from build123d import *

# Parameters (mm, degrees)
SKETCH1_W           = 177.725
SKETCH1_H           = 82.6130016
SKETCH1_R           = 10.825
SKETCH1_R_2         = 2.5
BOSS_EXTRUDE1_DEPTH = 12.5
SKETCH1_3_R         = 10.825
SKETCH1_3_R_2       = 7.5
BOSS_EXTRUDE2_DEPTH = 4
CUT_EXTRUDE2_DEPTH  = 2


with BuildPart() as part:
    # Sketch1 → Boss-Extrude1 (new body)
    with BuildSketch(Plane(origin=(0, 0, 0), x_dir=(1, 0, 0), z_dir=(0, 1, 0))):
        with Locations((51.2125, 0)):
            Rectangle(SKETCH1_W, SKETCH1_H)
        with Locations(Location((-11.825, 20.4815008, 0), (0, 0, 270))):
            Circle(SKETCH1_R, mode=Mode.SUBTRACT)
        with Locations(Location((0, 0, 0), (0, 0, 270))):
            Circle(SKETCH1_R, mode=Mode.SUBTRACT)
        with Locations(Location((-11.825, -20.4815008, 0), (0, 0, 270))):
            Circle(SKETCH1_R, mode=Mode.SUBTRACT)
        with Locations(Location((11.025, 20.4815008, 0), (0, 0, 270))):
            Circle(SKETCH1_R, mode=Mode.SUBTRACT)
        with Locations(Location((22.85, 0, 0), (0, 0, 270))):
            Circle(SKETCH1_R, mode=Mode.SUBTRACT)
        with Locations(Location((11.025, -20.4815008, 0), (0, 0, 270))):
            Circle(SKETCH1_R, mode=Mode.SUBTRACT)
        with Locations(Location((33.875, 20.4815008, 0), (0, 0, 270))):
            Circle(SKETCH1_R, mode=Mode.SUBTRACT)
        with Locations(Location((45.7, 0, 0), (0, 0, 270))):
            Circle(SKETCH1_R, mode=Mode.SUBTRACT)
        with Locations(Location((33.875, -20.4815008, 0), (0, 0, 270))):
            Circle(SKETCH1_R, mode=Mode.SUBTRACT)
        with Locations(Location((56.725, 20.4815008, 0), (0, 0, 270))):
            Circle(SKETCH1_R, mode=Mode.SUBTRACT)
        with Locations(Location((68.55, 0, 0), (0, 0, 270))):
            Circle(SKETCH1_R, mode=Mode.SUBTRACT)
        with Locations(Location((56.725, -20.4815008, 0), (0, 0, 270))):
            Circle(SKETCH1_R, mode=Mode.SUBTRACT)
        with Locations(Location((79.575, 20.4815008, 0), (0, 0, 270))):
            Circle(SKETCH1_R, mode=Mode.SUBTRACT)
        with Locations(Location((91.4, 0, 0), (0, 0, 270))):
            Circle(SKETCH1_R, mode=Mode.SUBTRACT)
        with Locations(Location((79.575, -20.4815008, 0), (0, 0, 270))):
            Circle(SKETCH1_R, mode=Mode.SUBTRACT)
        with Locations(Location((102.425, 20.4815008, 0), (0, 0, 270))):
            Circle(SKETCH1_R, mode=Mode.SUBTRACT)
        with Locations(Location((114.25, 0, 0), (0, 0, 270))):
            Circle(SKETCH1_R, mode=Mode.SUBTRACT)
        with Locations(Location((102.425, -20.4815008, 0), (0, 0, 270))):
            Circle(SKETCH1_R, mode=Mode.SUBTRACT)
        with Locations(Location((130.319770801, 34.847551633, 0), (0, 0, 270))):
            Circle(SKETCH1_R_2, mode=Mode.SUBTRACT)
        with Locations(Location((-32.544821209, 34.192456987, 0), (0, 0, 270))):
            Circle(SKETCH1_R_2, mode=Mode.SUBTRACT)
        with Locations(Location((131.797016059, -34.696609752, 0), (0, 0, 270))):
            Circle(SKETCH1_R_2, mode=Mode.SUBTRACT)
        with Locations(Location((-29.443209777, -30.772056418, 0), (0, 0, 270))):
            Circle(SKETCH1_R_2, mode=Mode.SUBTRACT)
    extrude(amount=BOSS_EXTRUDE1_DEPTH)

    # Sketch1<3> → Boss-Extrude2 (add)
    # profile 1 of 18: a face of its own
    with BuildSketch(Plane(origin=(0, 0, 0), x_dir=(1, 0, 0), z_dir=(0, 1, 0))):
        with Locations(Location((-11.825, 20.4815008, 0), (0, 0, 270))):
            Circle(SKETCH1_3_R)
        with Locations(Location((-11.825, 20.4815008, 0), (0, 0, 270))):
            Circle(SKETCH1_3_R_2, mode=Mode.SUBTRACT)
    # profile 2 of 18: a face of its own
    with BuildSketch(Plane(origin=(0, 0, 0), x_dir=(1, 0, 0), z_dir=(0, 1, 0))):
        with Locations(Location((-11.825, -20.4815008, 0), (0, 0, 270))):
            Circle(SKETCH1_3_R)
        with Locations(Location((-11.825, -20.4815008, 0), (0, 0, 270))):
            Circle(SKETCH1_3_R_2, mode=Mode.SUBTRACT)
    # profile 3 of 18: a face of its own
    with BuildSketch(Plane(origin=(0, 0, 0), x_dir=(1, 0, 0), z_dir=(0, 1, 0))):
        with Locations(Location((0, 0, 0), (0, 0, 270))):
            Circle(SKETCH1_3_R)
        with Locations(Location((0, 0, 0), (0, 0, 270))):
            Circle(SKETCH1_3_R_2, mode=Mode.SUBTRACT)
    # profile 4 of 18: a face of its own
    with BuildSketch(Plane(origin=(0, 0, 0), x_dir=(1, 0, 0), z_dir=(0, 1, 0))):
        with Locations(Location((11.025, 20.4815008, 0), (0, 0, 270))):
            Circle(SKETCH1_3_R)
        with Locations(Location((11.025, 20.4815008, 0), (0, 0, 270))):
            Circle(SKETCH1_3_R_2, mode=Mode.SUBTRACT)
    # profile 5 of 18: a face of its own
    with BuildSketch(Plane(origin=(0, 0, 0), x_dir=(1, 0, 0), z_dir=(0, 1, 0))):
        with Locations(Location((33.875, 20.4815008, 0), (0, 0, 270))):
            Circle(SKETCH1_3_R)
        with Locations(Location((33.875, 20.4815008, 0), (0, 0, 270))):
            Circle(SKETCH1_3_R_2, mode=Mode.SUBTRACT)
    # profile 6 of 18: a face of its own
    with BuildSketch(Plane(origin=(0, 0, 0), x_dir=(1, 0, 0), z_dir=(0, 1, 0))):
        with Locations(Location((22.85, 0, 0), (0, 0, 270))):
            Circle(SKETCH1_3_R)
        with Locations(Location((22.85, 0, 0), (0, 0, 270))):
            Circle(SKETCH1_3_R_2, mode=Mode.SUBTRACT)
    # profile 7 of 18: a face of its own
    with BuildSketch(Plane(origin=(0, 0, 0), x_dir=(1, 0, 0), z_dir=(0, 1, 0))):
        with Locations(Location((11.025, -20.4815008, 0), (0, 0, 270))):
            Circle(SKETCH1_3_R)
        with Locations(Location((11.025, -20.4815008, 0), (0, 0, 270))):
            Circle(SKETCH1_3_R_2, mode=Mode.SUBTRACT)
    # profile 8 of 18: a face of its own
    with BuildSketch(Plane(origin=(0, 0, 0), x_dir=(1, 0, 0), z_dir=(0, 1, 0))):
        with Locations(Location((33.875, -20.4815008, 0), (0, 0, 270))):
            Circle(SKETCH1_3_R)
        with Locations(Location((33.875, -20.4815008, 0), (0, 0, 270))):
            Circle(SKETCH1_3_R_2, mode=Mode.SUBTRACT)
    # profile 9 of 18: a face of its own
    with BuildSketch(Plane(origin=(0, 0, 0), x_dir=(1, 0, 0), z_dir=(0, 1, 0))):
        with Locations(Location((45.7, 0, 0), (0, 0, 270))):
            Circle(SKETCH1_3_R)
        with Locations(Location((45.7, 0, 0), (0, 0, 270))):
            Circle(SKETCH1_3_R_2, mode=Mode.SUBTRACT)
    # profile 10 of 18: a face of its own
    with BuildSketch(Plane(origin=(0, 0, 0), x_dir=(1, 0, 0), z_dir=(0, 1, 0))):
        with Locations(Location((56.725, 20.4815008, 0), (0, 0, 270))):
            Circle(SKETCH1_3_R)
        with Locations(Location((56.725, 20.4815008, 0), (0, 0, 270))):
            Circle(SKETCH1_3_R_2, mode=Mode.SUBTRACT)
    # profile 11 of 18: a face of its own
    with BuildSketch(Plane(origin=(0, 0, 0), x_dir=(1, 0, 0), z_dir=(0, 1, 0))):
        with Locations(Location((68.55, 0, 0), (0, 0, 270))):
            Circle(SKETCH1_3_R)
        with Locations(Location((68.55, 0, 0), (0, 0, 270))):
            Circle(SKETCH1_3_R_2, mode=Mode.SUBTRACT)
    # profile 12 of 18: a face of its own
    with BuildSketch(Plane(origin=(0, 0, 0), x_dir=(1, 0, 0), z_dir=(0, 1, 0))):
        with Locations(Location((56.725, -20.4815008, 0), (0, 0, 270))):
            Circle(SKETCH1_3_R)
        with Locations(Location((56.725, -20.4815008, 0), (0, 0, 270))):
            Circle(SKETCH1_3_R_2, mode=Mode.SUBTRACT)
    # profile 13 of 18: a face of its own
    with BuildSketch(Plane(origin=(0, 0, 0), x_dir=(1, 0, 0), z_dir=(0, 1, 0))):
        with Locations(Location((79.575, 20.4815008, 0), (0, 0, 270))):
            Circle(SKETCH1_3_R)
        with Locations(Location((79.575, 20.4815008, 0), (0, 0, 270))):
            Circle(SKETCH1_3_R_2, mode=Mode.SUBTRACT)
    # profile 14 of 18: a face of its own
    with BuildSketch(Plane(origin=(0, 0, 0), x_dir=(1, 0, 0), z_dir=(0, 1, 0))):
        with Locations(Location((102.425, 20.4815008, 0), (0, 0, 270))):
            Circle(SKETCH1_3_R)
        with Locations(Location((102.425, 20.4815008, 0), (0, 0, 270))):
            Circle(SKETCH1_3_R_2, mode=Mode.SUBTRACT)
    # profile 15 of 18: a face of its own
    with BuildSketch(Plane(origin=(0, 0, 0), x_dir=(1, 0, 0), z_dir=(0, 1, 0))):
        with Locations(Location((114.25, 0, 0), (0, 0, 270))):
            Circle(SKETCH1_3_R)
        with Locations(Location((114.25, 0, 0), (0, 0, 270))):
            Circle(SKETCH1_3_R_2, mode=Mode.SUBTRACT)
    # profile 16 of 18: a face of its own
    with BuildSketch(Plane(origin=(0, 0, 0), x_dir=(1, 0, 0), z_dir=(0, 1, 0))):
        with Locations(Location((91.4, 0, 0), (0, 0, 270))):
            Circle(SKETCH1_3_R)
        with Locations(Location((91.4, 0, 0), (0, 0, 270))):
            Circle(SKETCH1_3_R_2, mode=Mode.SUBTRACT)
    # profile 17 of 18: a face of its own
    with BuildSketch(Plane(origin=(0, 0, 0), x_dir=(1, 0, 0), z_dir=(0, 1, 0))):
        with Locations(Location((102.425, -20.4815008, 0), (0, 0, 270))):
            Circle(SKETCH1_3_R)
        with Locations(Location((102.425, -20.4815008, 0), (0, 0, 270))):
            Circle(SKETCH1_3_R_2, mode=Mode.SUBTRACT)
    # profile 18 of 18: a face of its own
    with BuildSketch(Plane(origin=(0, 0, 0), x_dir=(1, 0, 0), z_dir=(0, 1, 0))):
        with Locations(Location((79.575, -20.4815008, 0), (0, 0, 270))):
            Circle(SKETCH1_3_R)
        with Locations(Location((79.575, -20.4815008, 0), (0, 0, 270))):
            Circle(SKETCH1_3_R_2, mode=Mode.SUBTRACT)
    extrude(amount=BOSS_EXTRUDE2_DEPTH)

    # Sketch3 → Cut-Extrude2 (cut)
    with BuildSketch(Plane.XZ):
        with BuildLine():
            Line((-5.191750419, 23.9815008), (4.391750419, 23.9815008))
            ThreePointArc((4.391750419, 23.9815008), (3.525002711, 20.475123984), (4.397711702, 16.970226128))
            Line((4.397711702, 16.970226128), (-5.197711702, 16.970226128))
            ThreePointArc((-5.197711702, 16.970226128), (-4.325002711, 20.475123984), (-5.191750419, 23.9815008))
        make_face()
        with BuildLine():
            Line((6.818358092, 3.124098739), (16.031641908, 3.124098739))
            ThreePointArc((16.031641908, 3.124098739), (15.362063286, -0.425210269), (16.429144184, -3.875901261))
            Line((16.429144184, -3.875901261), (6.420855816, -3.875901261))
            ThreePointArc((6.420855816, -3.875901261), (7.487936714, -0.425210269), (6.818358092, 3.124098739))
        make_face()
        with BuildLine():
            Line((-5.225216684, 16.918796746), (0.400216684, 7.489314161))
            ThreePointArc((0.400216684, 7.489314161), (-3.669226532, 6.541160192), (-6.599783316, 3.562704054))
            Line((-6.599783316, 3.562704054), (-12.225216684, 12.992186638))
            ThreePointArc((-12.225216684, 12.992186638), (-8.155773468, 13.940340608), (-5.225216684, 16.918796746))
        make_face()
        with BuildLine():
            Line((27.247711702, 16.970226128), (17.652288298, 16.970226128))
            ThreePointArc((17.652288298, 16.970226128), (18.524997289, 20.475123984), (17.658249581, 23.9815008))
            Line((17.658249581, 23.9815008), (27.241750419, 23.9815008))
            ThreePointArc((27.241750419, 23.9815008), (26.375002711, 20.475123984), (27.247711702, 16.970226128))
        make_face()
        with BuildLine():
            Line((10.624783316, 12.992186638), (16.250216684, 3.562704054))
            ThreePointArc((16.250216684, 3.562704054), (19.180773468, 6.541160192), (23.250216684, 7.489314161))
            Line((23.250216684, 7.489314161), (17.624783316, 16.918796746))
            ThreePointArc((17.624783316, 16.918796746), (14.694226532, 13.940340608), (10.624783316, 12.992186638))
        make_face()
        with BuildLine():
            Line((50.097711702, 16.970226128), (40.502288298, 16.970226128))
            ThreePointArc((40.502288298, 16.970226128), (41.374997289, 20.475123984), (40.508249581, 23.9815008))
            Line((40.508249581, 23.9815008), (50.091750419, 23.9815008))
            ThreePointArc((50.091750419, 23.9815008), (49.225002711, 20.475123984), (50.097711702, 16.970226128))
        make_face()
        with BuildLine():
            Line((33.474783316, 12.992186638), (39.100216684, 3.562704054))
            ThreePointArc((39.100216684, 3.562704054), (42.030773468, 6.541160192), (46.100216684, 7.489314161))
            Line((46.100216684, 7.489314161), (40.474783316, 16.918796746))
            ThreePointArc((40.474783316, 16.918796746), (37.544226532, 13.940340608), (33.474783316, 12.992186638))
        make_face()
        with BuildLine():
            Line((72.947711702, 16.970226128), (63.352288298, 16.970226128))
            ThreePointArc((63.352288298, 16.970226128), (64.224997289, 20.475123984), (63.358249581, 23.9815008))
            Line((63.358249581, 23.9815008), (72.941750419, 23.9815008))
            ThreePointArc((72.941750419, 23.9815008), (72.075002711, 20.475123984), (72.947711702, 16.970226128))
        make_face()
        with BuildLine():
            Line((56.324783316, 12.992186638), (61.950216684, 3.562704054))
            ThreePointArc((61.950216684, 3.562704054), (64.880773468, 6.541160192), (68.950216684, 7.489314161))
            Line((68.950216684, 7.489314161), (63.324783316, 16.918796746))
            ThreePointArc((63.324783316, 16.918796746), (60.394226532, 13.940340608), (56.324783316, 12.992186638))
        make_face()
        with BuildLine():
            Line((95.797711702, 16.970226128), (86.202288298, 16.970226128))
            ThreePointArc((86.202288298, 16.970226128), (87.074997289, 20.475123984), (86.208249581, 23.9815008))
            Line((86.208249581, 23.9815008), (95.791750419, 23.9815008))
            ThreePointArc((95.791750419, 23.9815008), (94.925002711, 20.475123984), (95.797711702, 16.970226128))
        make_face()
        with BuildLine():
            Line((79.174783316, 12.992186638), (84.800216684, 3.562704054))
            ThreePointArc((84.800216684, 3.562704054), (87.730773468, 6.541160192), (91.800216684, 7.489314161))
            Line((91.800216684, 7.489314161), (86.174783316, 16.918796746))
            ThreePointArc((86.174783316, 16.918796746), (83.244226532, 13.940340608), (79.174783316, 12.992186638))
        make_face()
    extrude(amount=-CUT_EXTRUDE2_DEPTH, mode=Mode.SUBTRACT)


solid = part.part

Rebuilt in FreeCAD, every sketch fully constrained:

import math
import FreeCAD as App
import Part
import Sketcher

V = App.Vector


def add_polygon(sketch, points):
    """Adds a closed chain of lines whose ends are joined by coincident constraints."""
    first, n = sketch.GeometryCount, len(points)
    for a, b in zip(points, points[1:] + points[:1]):
        sketch.addGeometry(Part.LineSegment(App.Vector(*a, 0), App.Vector(*b, 0)), False)
    for i in range(n):
        sketch.addConstraint(Sketcher.Constraint("Coincident", first + i, 2, first + (i + 1) % n, 1))

doc = App.newDocument("Part")
params = doc.addObject("Spreadsheet::Sheet", "Params")
for row, (alias, value) in enumerate([
    ("sketch1_diameter", "5 mm"),
    ("sketch1_diameter2", "21.65 mm"),
    ("pad1_length", "12.5 mm"),
    ("sketch2_diameter", "15 mm"),
    ("sketch2_diameter2", "21.65 mm"),
    ("pad2_length", "4 mm"),
    ("sketch3_radius", "7.5 mm"),
    ("pocket1_length", "2 mm"),
], start=1):
    params.set(f"A{row}", alias)
    params.set(f"B{row}", "=" + value)
    params.setAlias(f"B{row}", alias)

body = doc.addObject("PartDesign::Body", "Body")

# Sketch on XZ plane
sketch1 = doc.addObject("Sketcher::SketchObject", "Sketch")
body.addObject(sketch1)
sketch1.AttachmentSupport = (doc.XZ_Plane, [""])
sketch1.MapMode = "FlatFace"
add_polygon(sketch1, [(-37.6, -41.3), (-37.6, 41.3), (140.1, 41.3), (140.1, -41.3)])  # lines 0-3
sketch1.addGeometry(Part.Circle(V(-29.4, 30.8, 0), V(0, 0, 1), 2.5), False)  # 4
sketch1.addGeometry(Part.Circle(V(-11.8, 20.5, 0), V(0, 0, 1), 10.8), False)  # 5
sketch1.addGeometry(Part.Circle(V(11, 20.5, 0), V(0, 0, 1), 10.8), False)  # 6
sketch1.addGeometry(Part.Circle(V(33.9, 20.5, 0), V(0, 0, 1), 10.8), False)  # 7
sketch1.addGeometry(Part.Circle(V(0, 0, 0), V(0, 0, 1), 10.8), False)  # 8
sketch1.addGeometry(Part.Circle(V(22.9, 0, 0), V(0, 0, 1), 10.8), False)  # 9
sketch1.addGeometry(Part.Circle(V(45.7, 0, 0), V(0, 0, 1), 10.8), False)  # 10
sketch1.addGeometry(Part.Circle(V(56.7, 20.5, 0), V(0, 0, 1), 10.8), False)  # 11
sketch1.addGeometry(Part.Circle(V(79.6, 20.5, 0), V(0, 0, 1), 10.8), False)  # 12
sketch1.addGeometry(Part.Circle(V(131.8, 34.7, 0), V(0, 0, 1), 2.5), False)  # 13
sketch1.addGeometry(Part.Circle(V(102.4, 20.5, 0), V(0, 0, 1), 10.8), False)  # 14
sketch1.addGeometry(Part.Circle(V(68.5, 0, 0), V(0, 0, 1), 10.8), False)  # 15
sketch1.addGeometry(Part.Circle(V(91.4, 0, 0), V(0, 0, 1), 10.8), False)  # 16
sketch1.addGeometry(Part.Circle(V(114.2, 0, 0), V(0, 0, 1), 10.8), False)  # 17
sketch1.addGeometry(Part.Circle(V(-11.8, -20.5, 0), V(0, 0, 1), 10.8), False)  # 18
sketch1.addGeometry(Part.Circle(V(-32.5, -34.2, 0), V(0, 0, 1), 2.5), False)  # 19
sketch1.addGeometry(Part.Circle(V(11, -20.5, 0), V(0, 0, 1), 10.8), False)  # 20
sketch1.addGeometry(Part.Circle(V(33.9, -20.5, 0), V(0, 0, 1), 10.8), False)  # 21
sketch1.addGeometry(Part.Circle(V(56.7, -20.5, 0), V(0, 0, 1), 10.8), False)  # 22
sketch1.addGeometry(Part.Circle(V(79.6, -20.5, 0), V(0, 0, 1), 10.8), False)  # 23
sketch1.addGeometry(Part.Circle(V(102.4, -20.5, 0), V(0, 0, 1), 10.8), False)  # 24
sketch1.addGeometry(Part.Circle(V(130.3, -34.8, 0), V(0, 0, 1), 2.5), False)  # 25
sketch1.addConstraint([
    Sketcher.Constraint("Vertical", 0),
    Sketcher.Constraint("Horizontal", 1),
    Sketcher.Constraint("Vertical", 2),
    Sketcher.Constraint("Horizontal", 3),
    Sketcher.Constraint("Coincident", 8, 3, -1, 1),
    Sketcher.Constraint("Equal", 5, 6),
    Sketcher.Constraint("Equal", 6, 7),
    Sketcher.Constraint("Equal", 7, 8),
    Sketcher.Constraint("Equal", 8, 9),
    Sketcher.Constraint("Equal", 9, 10),
    Sketcher.Constraint("Equal", 10, 11),
    Sketcher.Constraint("Equal", 11, 12),
    Sketcher.Constraint("Equal", 4, 13),
    Sketcher.Constraint("Equal", 12, 14),
    Sketcher.Constraint("Equal", 14, 15),
    Sketcher.Constraint("Equal", 15, 16),
    Sketcher.Constraint("Equal", 16, 17),
    Sketcher.Constraint("Equal", 17, 18),
    Sketcher.Constraint("Equal", 13, 19),
    Sketcher.Constraint("Equal", 18, 20),
    Sketcher.Constraint("Equal", 20, 21),
    Sketcher.Constraint("Equal", 21, 22),
    Sketcher.Constraint("Equal", 22, 23),
    Sketcher.Constraint("Equal", 23, 24),
    Sketcher.Constraint("Equal", 19, 25),
    Sketcher.Constraint("Symmetric", 5, 3, 18, 3, -1),
    Sketcher.Constraint("Symmetric", 6, 3, 20, 3, -1),
    Sketcher.Constraint("Symmetric", 7, 3, 21, 3, -1),
    Sketcher.Constraint("Symmetric", 11, 3, 22, 3, -1),
    Sketcher.Constraint("Symmetric", 12, 3, 23, 3, -1),
    Sketcher.Constraint("Symmetric", 14, 3, 24, 3, -1),
    Sketcher.Constraint("PointOnObject", 9, 3, -1),
    Sketcher.Constraint("PointOnObject", 10, 3, -1),
    Sketcher.Constraint("PointOnObject", 15, 3, -1),
    Sketcher.Constraint("PointOnObject", 16, 3, -1),
    Sketcher.Constraint("PointOnObject", 17, 3, -1),
    Sketcher.Constraint("Horizontal", 5, 3, 6, 3),
    Sketcher.Constraint("Horizontal", 6, 3, 7, 3),
    Sketcher.Constraint("Horizontal", 7, 3, 11, 3),
    Sketcher.Constraint("Horizontal", 11, 3, 12, 3),
    Sketcher.Constraint("Horizontal", 12, 3, 14, 3),
    Sketcher.Constraint("Diameter", 4, 5.0),
    Sketcher.Constraint("Diameter", 5, 21.65),
    Sketcher.Constraint("DistanceX", -1, 1, 10, 3, 45.7),
    Sketcher.Constraint("DistanceX", -1, 1, 16, 3, 91.4),
    Sketcher.Constraint("DistanceX", 5, 3, 7, 3, 45.7),
    Sketcher.Constraint("DistanceX", 6, 3, 11, 3, 45.7),
    Sketcher.Constraint("DistanceX", 7, 3, 12, 3, 45.7),
    Sketcher.Constraint("DistanceX", 11, 3, 14, 3, 45.7),
    Sketcher.Constraint("DistanceX", 15, 3, 17, 3, 45.7),
    Sketcher.Constraint("DistanceX", 12, 3, 1, 2, 60.5),
    Sketcher.Constraint("DistanceX", 1, 1, 1, 2, 177.725),
    Sketcher.Constraint("DistanceY", 0, 1, 0, 2, 82.613002),
    Sketcher.Constraint("DistanceX", -1, 1, 9, 3, 22.85),
    Sketcher.Constraint("DistanceX", -1, 1, 15, 3, 68.55),
    Sketcher.Constraint("DistanceX", 0, 2, -1, 1, 37.65),
    Sketcher.Constraint("DistanceX", 5, 3, 6, 3, 22.85),
    Sketcher.Constraint("DistanceY", 18, 3, 5, 3, 40.963002),
    Sketcher.Constraint("DistanceY", 5, 3, 0, 2, 20.825),
    Sketcher.Constraint("DistanceX", 4, 3, -1, 1, 29.44321),
    Sketcher.Constraint("DistanceY", -1, 1, 13, 3, 34.69661),
    Sketcher.Constraint("DistanceX", 19, 3, -1, 1, 32.544821),
    Sketcher.Constraint("DistanceX", -1, 1, 25, 3, 130.319771),
    Sketcher.Constraint("DistanceY", 25, 3, -1, 1, 34.847552),
    Sketcher.Constraint("DistanceY", -1, 1, 4, 3, 30.772056),
    Sketcher.Constraint("DistanceX", -1, 1, 13, 3, 131.797016),
    Sketcher.Constraint("DistanceY", 19, 3, -1, 1, 34.192457),
])
sketch1.setExpression("Constraints[45]", "Params.sketch1_diameter")
sketch1.setExpression("Constraints[46]", "Params.sketch1_diameter2")
pad1 = doc.addObject("PartDesign::Pad", "Pad")
body.addObject(pad1)
pad1.Profile = sketch1
pad1.setExpression("Length", "Params.pad1_length")
pad1.Reversed = True

# Sketch on XZ plane
sketch2 = doc.addObject("Sketcher::SketchObject", "Sketch001")
body.addObject(sketch2)
sketch2.AttachmentSupport = (doc.XZ_Plane, [""])
sketch2.MapMode = "FlatFace"
sketch2.addGeometry([
    Part.Circle(V(-12, -20, 0), V(0, 0, 1), 11),  # 0
    Part.Circle(V(-12, -20, 0), V(0, 0, 1), 8),  # 1
    Part.Circle(V(-12, 20, 0), V(0, 0, 1), 11),  # 2
    Part.Circle(V(-12, 20, 0), V(0, 0, 1), 8),  # 3
    Part.Circle(V(0, 0, 0), V(0, 0, 1), 11),  # 4
    Part.Circle(V(0, 0, 0), V(0, 0, 1), 8),  # 5
    Part.Circle(V(11, -20, 0), V(0, 0, 1), 11),  # 6
    Part.Circle(V(11, -20, 0), V(0, 0, 1), 8),  # 7
    Part.Circle(V(34, -20, 0), V(0, 0, 1), 11),  # 8
    Part.Circle(V(34, -20, 0), V(0, 0, 1), 8),  # 9
    Part.Circle(V(23, 0, 0), V(0, 0, 1), 11),  # 10
    Part.Circle(V(23, 0, 0), V(0, 0, 1), 8),  # 11
    Part.Circle(V(11, 20, 0), V(0, 0, 1), 11),  # 12
    Part.Circle(V(11, 20, 0), V(0, 0, 1), 8),  # 13
    Part.Circle(V(34, 20, 0), V(0, 0, 1), 11),  # 14
    Part.Circle(V(34, 20, 0), V(0, 0, 1), 8),  # 15
    Part.Circle(V(46, 0, 0), V(0, 0, 1), 11),  # 16
    Part.Circle(V(46, 0, 0), V(0, 0, 1), 8),  # 17
    Part.Circle(V(57, -20, 0), V(0, 0, 1), 11),  # 18
    Part.Circle(V(57, -20, 0), V(0, 0, 1), 8),  # 19
    Part.Circle(V(69, 0, 0), V(0, 0, 1), 11),  # 20
    Part.Circle(V(69, 0, 0), V(0, 0, 1), 8),  # 21
    Part.Circle(V(57, 20, 0), V(0, 0, 1), 11),  # 22
    Part.Circle(V(57, 20, 0), V(0, 0, 1), 8),  # 23
    Part.Circle(V(80, -20, 0), V(0, 0, 1), 11),  # 24
    Part.Circle(V(80, -20, 0), V(0, 0, 1), 8),  # 25
    Part.Circle(V(102, -20, 0), V(0, 0, 1), 11),  # 26
    Part.Circle(V(102, -20, 0), V(0, 0, 1), 8),  # 27
    Part.Circle(V(114, 0, 0), V(0, 0, 1), 11),  # 28
    Part.Circle(V(114, 0, 0), V(0, 0, 1), 8),  # 29
    Part.Circle(V(91, 0, 0), V(0, 0, 1), 11),  # 30
    Part.Circle(V(91, 0, 0), V(0, 0, 1), 8),  # 31
    Part.Circle(V(102, 20, 0), V(0, 0, 1), 11),  # 32
    Part.Circle(V(102, 20, 0), V(0, 0, 1), 8),  # 33
    Part.Circle(V(80, 20, 0), V(0, 0, 1), 11),  # 34
    Part.Circle(V(80, 20, 0), V(0, 0, 1), 8),  # 35
], False)
sketch2.addConstraint([
    Sketcher.Constraint("Coincident", 4, 3, -1, 1),
    Sketcher.Constraint("Coincident", 5, 3, -1, 1),
    Sketcher.Constraint("Coincident", 1, 3, 0, 3),
    Sketcher.Constraint("Coincident", 3, 3, 2, 3),
    Sketcher.Constraint("Coincident", 7, 3, 6, 3),
    Sketcher.Constraint("Coincident", 9, 3, 8, 3),
    Sketcher.Constraint("Coincident", 11, 3, 10, 3),
    Sketcher.Constraint("Coincident", 13, 3, 12, 3),
    Sketcher.Constraint("Coincident", 15, 3, 14, 3),
    Sketcher.Constraint("Coincident", 17, 3, 16, 3),
    Sketcher.Constraint("Coincident", 19, 3, 18, 3),
    Sketcher.Constraint("Coincident", 21, 3, 20, 3),
    Sketcher.Constraint("Coincident", 23, 3, 22, 3),
    Sketcher.Constraint("Coincident", 25, 3, 24, 3),
    Sketcher.Constraint("Coincident", 27, 3, 26, 3),
    Sketcher.Constraint("Coincident", 29, 3, 28, 3),
    Sketcher.Constraint("Coincident", 31, 3, 30, 3),
    Sketcher.Constraint("Coincident", 33, 3, 32, 3),
    Sketcher.Constraint("Coincident", 35, 3, 34, 3),
    Sketcher.Constraint("Equal", 0, 2),
    Sketcher.Constraint("Equal", 1, 3),
    Sketcher.Constraint("Equal", 2, 4),
    Sketcher.Constraint("Equal", 3, 5),
    Sketcher.Constraint("Equal", 4, 6),
    Sketcher.Constraint("Equal", 5, 7),
    Sketcher.Constraint("Equal", 6, 8),
    Sketcher.Constraint("Equal", 7, 9),
    Sketcher.Constraint("Equal", 8, 10),
    Sketcher.Constraint("Equal", 9, 11),
    Sketcher.Constraint("Equal", 10, 12),
    Sketcher.Constraint("Equal", 11, 13),
    Sketcher.Constraint("Equal", 12, 14),
    Sketcher.Constraint("Equal", 13, 15),
    Sketcher.Constraint("Equal", 14, 16),
    Sketcher.Constraint("Equal", 15, 17),
    Sketcher.Constraint("Equal", 16, 18),
    Sketcher.Constraint("Equal", 17, 19),
    Sketcher.Constraint("Equal", 18, 20),
    Sketcher.Constraint("Equal", 19, 21),
    Sketcher.Constraint("Equal", 20, 22),
    Sketcher.Constraint("Equal", 21, 23),
    Sketcher.Constraint("Equal", 22, 24),
    Sketcher.Constraint("Equal", 23, 25),
    Sketcher.Constraint("Equal", 24, 26),
    Sketcher.Constraint("Equal", 25, 27),
    Sketcher.Constraint("Equal", 26, 28),
    Sketcher.Constraint("Equal", 27, 29),
    Sketcher.Constraint("Equal", 28, 30),
    Sketcher.Constraint("Equal", 29, 31),
    Sketcher.Constraint("Equal", 30, 32),
    Sketcher.Constraint("Equal", 31, 33),
    Sketcher.Constraint("Equal", 32, 34),
    Sketcher.Constraint("Equal", 33, 35),
    Sketcher.Constraint("Symmetric", 0, 3, 2, 3, -1),
    Sketcher.Constraint("Symmetric", 6, 3, 12, 3, -1),
    Sketcher.Constraint("Symmetric", 8, 3, 14, 3, -1),
    Sketcher.Constraint("Symmetric", 18, 3, 22, 3, -1),
    Sketcher.Constraint("Symmetric", 26, 3, 32, 3, -1),
    Sketcher.Constraint("Symmetric", 24, 3, 34, 3, -1),
    Sketcher.Constraint("PointOnObject", 10, 3, -1),
    Sketcher.Constraint("PointOnObject", 16, 3, -1),
    Sketcher.Constraint("PointOnObject", 20, 3, -1),
    Sketcher.Constraint("PointOnObject", 28, 3, -1),
    Sketcher.Constraint("PointOnObject", 30, 3, -1),
    Sketcher.Constraint("Horizontal", 1, 3, 6, 3),
    Sketcher.Constraint("Horizontal", 7, 3, 8, 3),
    Sketcher.Constraint("Horizontal", 9, 3, 18, 3),
    Sketcher.Constraint("Horizontal", 19, 3, 24, 3),
    Sketcher.Constraint("Horizontal", 25, 3, 26, 3),
    Sketcher.Constraint("Diameter", 1, 15.0),
    Sketcher.Constraint("Diameter", 0, 21.65),
    Sketcher.Constraint("DistanceX", -1, 1, 16, 3, 45.7),
    Sketcher.Constraint("DistanceX", -1, 1, 30, 3, 91.4),
    Sketcher.Constraint("DistanceX", 0, 3, 8, 3, 45.7),
    Sketcher.Constraint("DistanceX", 18, 3, 26, 3, 45.7),
    Sketcher.Constraint("DistanceX", 20, 3, 28, 3, 45.7),
    Sketcher.Constraint("DistanceX", -1, 1, 10, 3, 22.85),
    Sketcher.Constraint("DistanceX", -1, 1, 20, 3, 68.55),
    Sketcher.Constraint("DistanceX", 0, 3, 6, 3, 22.85),
    Sketcher.Constraint("DistanceX", 8, 3, 18, 3, 22.85),
    Sketcher.Constraint("DistanceX", 18, 3, 24, 3, 22.85),
    Sketcher.Constraint("DistanceX", 0, 3, -1, 1, 11.825),
    Sketcher.Constraint("DistanceY", 0, 3, 2, 3, 40.963002),
])
sketch2.setExpression("Constraints[69]", "Params.sketch2_diameter")
sketch2.setExpression("Constraints[70]", "Params.sketch2_diameter2")
pad2 = doc.addObject("PartDesign::Pad", "Pad001")
body.addObject(pad2)
pad2.Profile = sketch2
pad2.setExpression("Length", "Params.pad2_length")
pad2.Reversed = True

# Sketch on XZ plane
sketch3 = doc.addObject("Sketcher::SketchObject", "Sketch002")
body.addObject(sketch3)
sketch3.AttachmentSupport = (doc.XZ_Plane, [""])
sketch3.MapMode = "FlatFace"
sketch3.addGeometry([
    Part.LineSegment(V(4, 24, 0), V(-5, 24, 0)),  # 0
    Part.ArcOfCircle(Part.Circle(V(-12, 20, 0), V(0, 0, 1), 8), math.radians(-28), math.radians(28)),  # 1
    Part.LineSegment(V(-5, 17, 0), V(4, 17, 0)),  # 2
    Part.ArcOfCircle(Part.Circle(V(11, 20, 0), V(0, 0, 1), 8), math.radians(152), math.radians(208)),  # 3
    Part.LineSegment(V(16, 3, 0), V(7, 3, 0)),  # 4
    Part.ArcOfCircle(Part.Circle(V(0, 0, 0), V(0, 0, 1), 7), math.radians(-31), math.radians(25)),  # 5
    Part.LineSegment(V(6, -4, 0), V(16, -4, 0)),  # 6
    Part.ArcOfCircle(Part.Circle(V(23, 0, 0), V(0, 0, 1), 7), math.radians(155), math.radians(211)),  # 7
    Part.LineSegment(V(0, 7, 0), V(-5, 17, 0)),  # 8
    Part.ArcOfCircle(Part.Circle(V(-12, 20, 0), V(0, 0, 1), 8), math.radians(-93), math.radians(-28)),  # 9
    Part.LineSegment(V(-12, 13, 0), V(-7, 4, 0)),  # 10
    Part.ArcOfCircle(Part.Circle(V(0, 0, 0), V(0, 0, 1), 7), math.radians(87), math.radians(152)),  # 11
    Part.LineSegment(V(18, 17, 0), V(27, 17, 0)),  # 12
    Part.ArcOfCircle(Part.Circle(V(34, 20, 0), V(0, 0, 1), 8), math.radians(152), math.radians(208)),  # 13
    Part.LineSegment(V(27, 24, 0), V(18, 24, 0)),  # 14
    Part.ArcOfCircle(Part.Circle(V(11, 20, 0), V(0, 0, 1), 8), math.radians(-28), math.radians(28)),  # 15
    Part.LineSegment(V(11, 13, 0), V(16, 4, 0)),  # 16
    Part.ArcOfCircle(Part.Circle(V(23, 0, 0), V(0, 0, 1), 7), math.radians(87), math.radians(152)),  # 17
    Part.LineSegment(V(23, 7, 0), V(18, 17, 0)),  # 18
    Part.ArcOfCircle(Part.Circle(V(11, 20, 0), V(0, 0, 1), 8), math.radians(-93), math.radians(-28)),  # 19
    Part.LineSegment(V(41, 17, 0), V(50, 17, 0)),  # 20
    Part.ArcOfCircle(Part.Circle(V(57, 20, 0), V(0, 0, 1), 8), math.radians(152), math.radians(208)),  # 21
    Part.LineSegment(V(50, 24, 0), V(41, 24, 0)),  # 22
    Part.ArcOfCircle(Part.Circle(V(34, 20, 0), V(0, 0, 1), 8), math.radians(-28), math.radians(28)),  # 23
    Part.LineSegment(V(33, 13, 0), V(39, 4, 0)),  # 24
    Part.ArcOfCircle(Part.Circle(V(46, 0, 0), V(0, 0, 1), 7), math.radians(87), math.radians(152)),  # 25
    Part.LineSegment(V(46, 7, 0), V(40, 17, 0)),  # 26
    Part.ArcOfCircle(Part.Circle(V(34, 20, 0), V(0, 0, 1), 8), math.radians(-93), math.radians(-28)),  # 27
    Part.LineSegment(V(63, 17, 0), V(73, 17, 0)),  # 28
    Part.ArcOfCircle(Part.Circle(V(80, 20, 0), V(0, 0, 1), 8), math.radians(152), math.radians(208)),  # 29
    Part.LineSegment(V(73, 24, 0), V(63, 24, 0)),  # 30
    Part.ArcOfCircle(Part.Circle(V(57, 20, 0), V(0, 0, 1), 8), math.radians(-28), math.radians(28)),  # 31
    Part.LineSegment(V(56, 13, 0), V(62, 4, 0)),  # 32
    Part.ArcOfCircle(Part.Circle(V(69, 0, 0), V(0, 0, 1), 7), math.radians(87), math.radians(152)),  # 33
    Part.LineSegment(V(69, 7, 0), V(63, 17, 0)),  # 34
    Part.ArcOfCircle(Part.Circle(V(57, 20, 0), V(0, 0, 1), 8), math.radians(-93), math.radians(-28)),  # 35
    Part.LineSegment(V(86, 17, 0), V(96, 17, 0)),  # 36
    Part.ArcOfCircle(Part.Circle(V(102, 20, 0), V(0, 0, 1), 8), math.radians(152), math.radians(208)),  # 37
    Part.LineSegment(V(96, 24, 0), V(86, 24, 0)),  # 38
    Part.ArcOfCircle(Part.Circle(V(80, 20, 0), V(0, 0, 1), 8), math.radians(-28), math.radians(28)),  # 39
    Part.LineSegment(V(79, 13, 0), V(85, 4, 0)),  # 40
    Part.ArcOfCircle(Part.Circle(V(91, 0, 0), V(0, 0, 1), 7), math.radians(87), math.radians(152)),  # 41
    Part.LineSegment(V(92, 7, 0), V(86, 17, 0)),  # 42
    Part.ArcOfCircle(Part.Circle(V(80, 20, 0), V(0, 0, 1), 8), math.radians(-93), math.radians(-28)),  # 43
], False)
sketch3.addConstraint([
    Sketcher.Constraint("Coincident", 0, 2, 1, 2),
    Sketcher.Constraint("Coincident", 1, 1, 2, 1),
    Sketcher.Constraint("Coincident", 2, 2, 3, 2),
    Sketcher.Constraint("Coincident", 3, 1, 0, 1),
    Sketcher.Constraint("Coincident", 4, 2, 5, 2),
    Sketcher.Constraint("Coincident", 5, 1, 6, 1),
    Sketcher.Constraint("Coincident", 6, 2, 7, 2),
    Sketcher.Constraint("Coincident", 7, 1, 4, 1),
    Sketcher.Constraint("Coincident", 8, 2, 9, 2),
    Sketcher.Constraint("Coincident", 9, 1, 10, 1),
    Sketcher.Constraint("Coincident", 10, 2, 11, 2),
    Sketcher.Constraint("Coincident", 11, 1, 8, 1),
    Sketcher.Constraint("Coincident", 12, 2, 13, 2),
    Sketcher.Constraint("Coincident", 13, 1, 14, 1),
    Sketcher.Constraint("Coincident", 14, 2, 15, 2),
    Sketcher.Constraint("Coincident", 15, 1, 12, 1),
    Sketcher.Constraint("Coincident", 16, 2, 17, 2),
    Sketcher.Constraint("Coincident", 17, 1, 18, 1),
    Sketcher.Constraint("Coincident", 18, 2, 19, 2),
    Sketcher.Constraint("Coincident", 19, 1, 16, 1),
    Sketcher.Constraint("Coincident", 20, 2, 21, 2),
    Sketcher.Constraint("Coincident", 21, 1, 22, 1),
    Sketcher.Constraint("Coincident", 22, 2, 23, 2),
    Sketcher.Constraint("Coincident", 23, 1, 20, 1),
    Sketcher.Constraint("Coincident", 24, 2, 25, 2),
    Sketcher.Constraint("Coincident", 25, 1, 26, 1),
    Sketcher.Constraint("Coincident", 26, 2, 27, 2),
    Sketcher.Constraint("Coincident", 27, 1, 24, 1),
    Sketcher.Constraint("Coincident", 28, 2, 29, 2),
    Sketcher.Constraint("Coincident", 29, 1, 30, 1),
    Sketcher.Constraint("Coincident", 30, 2, 31, 2),
    Sketcher.Constraint("Coincident", 31, 1, 28, 1),
    Sketcher.Constraint("Coincident", 32, 2, 33, 2),
    Sketcher.Constraint("Coincident", 33, 1, 34, 1),
    Sketcher.Constraint("Coincident", 34, 2, 35, 2),
    Sketcher.Constraint("Coincident", 35, 1, 32, 1),
    Sketcher.Constraint("Coincident", 36, 2, 37, 2),
    Sketcher.Constraint("Coincident", 37, 1, 38, 1),
    Sketcher.Constraint("Coincident", 38, 2, 39, 2),
    Sketcher.Constraint("Coincident", 39, 1, 36, 1),
    Sketcher.Constraint("Coincident", 40, 2, 41, 2),
    Sketcher.Constraint("Coincident", 41, 1, 42, 1),
    Sketcher.Constraint("Coincident", 42, 2, 43, 2),
    Sketcher.Constraint("Coincident", 43, 1, 40, 1),
    Sketcher.Constraint("Horizontal", 0),
    Sketcher.Constraint("Horizontal", 2),
    Sketcher.Constraint("Horizontal", 4),
    Sketcher.Constraint("Horizontal", 6),
    Sketcher.Constraint("Horizontal", 12),
    Sketcher.Constraint("Horizontal", 14),
    Sketcher.Constraint("Horizontal", 20),
    Sketcher.Constraint("Horizontal", 22),
    Sketcher.Constraint("Horizontal", 28),
    Sketcher.Constraint("Horizontal", 30),
    Sketcher.Constraint("Horizontal", 36),
    Sketcher.Constraint("Horizontal", 38),
    Sketcher.Constraint("Coincident", 5, 3, -1, 1),
    Sketcher.Constraint("Coincident", 11, 3, -1, 1),
    Sketcher.Constraint("Coincident", 9, 3, 1, 3),
    Sketcher.Constraint("Coincident", 15, 3, 3, 3),
    Sketcher.Constraint("Coincident", 17, 3, 7, 3),
    Sketcher.Constraint("Coincident", 19, 3, 3, 3),
    Sketcher.Constraint("Coincident", 23, 3, 13, 3),
    Sketcher.Constraint("Coincident", 27, 3, 13, 3),
    Sketcher.Constraint("Coincident", 31, 3, 21, 3),
    Sketcher.Constraint("Coincident", 35, 3, 21, 3),
    Sketcher.Constraint("Coincident", 39, 3, 29, 3),
    Sketcher.Constraint("Coincident", 43, 3, 29, 3),
    Sketcher.Constraint("Equal", 1, 3),
    Sketcher.Constraint("Equal", 3, 5),
    Sketcher.Constraint("Equal", 5, 7),
    Sketcher.Constraint("Equal", 7, 9),
    Sketcher.Constraint("Equal", 9, 11),
    Sketcher.Constraint("Equal", 11, 13),
    Sketcher.Constraint("Equal", 13, 15),
    Sketcher.Constraint("Equal", 15, 17),
    Sketcher.Constraint("Equal", 17, 19),
    Sketcher.Constraint("Equal", 19, 21),
    Sketcher.Constraint("Equal", 21, 23),
    Sketcher.Constraint("Equal", 23, 25),
    Sketcher.Constraint("Equal", 25, 27),
    Sketcher.Constraint("Equal", 27, 29),
    Sketcher.Constraint("Equal", 29, 31),
    Sketcher.Constraint("Equal", 31, 33),
    Sketcher.Constraint("Equal", 33, 35),
    Sketcher.Constraint("Equal", 35, 37),
    Sketcher.Constraint("Equal", 37, 39),
    Sketcher.Constraint("Equal", 39, 41),
    Sketcher.Constraint("Equal", 41, 43),
    Sketcher.Constraint("PointOnObject", 7, 3, -1),
    Sketcher.Constraint("PointOnObject", 25, 3, -1),
    Sketcher.Constraint("PointOnObject", 33, 3, -1),
    Sketcher.Constraint("PointOnObject", 41, 3, -1),
    Sketcher.Constraint("Parallel", 8, 10),
    Sketcher.Constraint("Parallel", 10, 16),
    Sketcher.Constraint("Parallel", 16, 18),
    Sketcher.Constraint("Parallel", 18, 24),
    Sketcher.Constraint("Parallel", 24, 26),
    Sketcher.Constraint("Parallel", 26, 32),
    Sketcher.Constraint("Parallel", 32, 34),
    Sketcher.Constraint("Parallel", 34, 40),
    Sketcher.Constraint("Parallel", 40, 42),
    Sketcher.Constraint("Horizontal", 1, 3, 3, 3),
    Sketcher.Constraint("Horizontal", 9, 3, 13, 3),
    Sketcher.Constraint("Horizontal", 19, 3, 21, 3),
    Sketcher.Constraint("Horizontal", 27, 3, 29, 3),
    Sketcher.Constraint("Horizontal", 35, 3, 37, 3),
    Sketcher.Constraint("Horizontal", 2, 2, 12, 2),
    Sketcher.Constraint("Horizontal", 3, 1, 13, 1),
    Sketcher.Constraint("Horizontal", 10, 2, 16, 2),
    Sketcher.Constraint("Horizontal", 11, 1, 17, 1),
    Sketcher.Constraint("Horizontal", 8, 2, 18, 2),
    Sketcher.Constraint("Horizontal", 15, 1, 20, 2),
    Sketcher.Constraint("Horizontal", 14, 2, 21, 1),
    Sketcher.Constraint("Horizontal", 16, 2, 24, 2),
    Sketcher.Constraint("Horizontal", 17, 1, 25, 1),
    Sketcher.Constraint("Horizontal", 18, 2, 26, 2),
    Sketcher.Constraint("Horizontal", 23, 1, 28, 2),
    Sketcher.Constraint("Horizontal", 22, 2, 29, 1),
    Sketcher.Constraint("Horizontal", 24, 2, 32, 2),
    Sketcher.Constraint("Horizontal", 25, 1, 33, 1),
    Sketcher.Constraint("Horizontal", 26, 2, 34, 2),
    Sketcher.Constraint("Horizontal", 31, 1, 36, 2),
    Sketcher.Constraint("Horizontal", 30, 2, 37, 1),
    Sketcher.Constraint("Horizontal", 32, 2, 40, 2),
    Sketcher.Constraint("Horizontal", 33, 1, 41, 1),
    Sketcher.Constraint("Horizontal", 34, 2, 42, 2),
    Sketcher.Constraint("Equal", 2, 12),
    Sketcher.Constraint("Equal", 12, 20),
    Sketcher.Constraint("Equal", 20, 28),
    Sketcher.Constraint("Equal", 28, 36),
    Sketcher.Constraint("Equal", 8, 10),
    Sketcher.Constraint("Radius", 1, 7.5),
    Sketcher.Constraint("DistanceX", -1, 1, 25, 3, 45.7),
    Sketcher.Constraint("DistanceX", 0, 2, 0, 1, 9.583501),
    Sketcher.Constraint("DistanceX", 1, 3, -1, 1, 11.825),
    Sketcher.Constraint("DistanceX", 6, 1, 6, 2, 10.008288),
    Sketcher.Constraint("DistanceY", -1, 1, 1, 3, 20.481501),
    Sketcher.Constraint("DistanceY", -1, 1, 4, 2, 3.124099),
    Sketcher.Constraint("Distance", 8, 10.980011),
    Sketcher.Constraint("DistanceX", 2, 1, 2, 2, 9.595423),
    Sketcher.Constraint("DistanceX", 8, 2, -1, 1, 5.225217),
])
sketch3.setExpression("Constraints[132]", "Params.sketch3_radius")
pocket1 = doc.addObject("PartDesign::Pocket", "Pocket")
body.addObject(pocket1)
pocket1.Profile = sketch3
pocket1.setExpression("Length", "Params.pocket1_length")

doc.recompute()
